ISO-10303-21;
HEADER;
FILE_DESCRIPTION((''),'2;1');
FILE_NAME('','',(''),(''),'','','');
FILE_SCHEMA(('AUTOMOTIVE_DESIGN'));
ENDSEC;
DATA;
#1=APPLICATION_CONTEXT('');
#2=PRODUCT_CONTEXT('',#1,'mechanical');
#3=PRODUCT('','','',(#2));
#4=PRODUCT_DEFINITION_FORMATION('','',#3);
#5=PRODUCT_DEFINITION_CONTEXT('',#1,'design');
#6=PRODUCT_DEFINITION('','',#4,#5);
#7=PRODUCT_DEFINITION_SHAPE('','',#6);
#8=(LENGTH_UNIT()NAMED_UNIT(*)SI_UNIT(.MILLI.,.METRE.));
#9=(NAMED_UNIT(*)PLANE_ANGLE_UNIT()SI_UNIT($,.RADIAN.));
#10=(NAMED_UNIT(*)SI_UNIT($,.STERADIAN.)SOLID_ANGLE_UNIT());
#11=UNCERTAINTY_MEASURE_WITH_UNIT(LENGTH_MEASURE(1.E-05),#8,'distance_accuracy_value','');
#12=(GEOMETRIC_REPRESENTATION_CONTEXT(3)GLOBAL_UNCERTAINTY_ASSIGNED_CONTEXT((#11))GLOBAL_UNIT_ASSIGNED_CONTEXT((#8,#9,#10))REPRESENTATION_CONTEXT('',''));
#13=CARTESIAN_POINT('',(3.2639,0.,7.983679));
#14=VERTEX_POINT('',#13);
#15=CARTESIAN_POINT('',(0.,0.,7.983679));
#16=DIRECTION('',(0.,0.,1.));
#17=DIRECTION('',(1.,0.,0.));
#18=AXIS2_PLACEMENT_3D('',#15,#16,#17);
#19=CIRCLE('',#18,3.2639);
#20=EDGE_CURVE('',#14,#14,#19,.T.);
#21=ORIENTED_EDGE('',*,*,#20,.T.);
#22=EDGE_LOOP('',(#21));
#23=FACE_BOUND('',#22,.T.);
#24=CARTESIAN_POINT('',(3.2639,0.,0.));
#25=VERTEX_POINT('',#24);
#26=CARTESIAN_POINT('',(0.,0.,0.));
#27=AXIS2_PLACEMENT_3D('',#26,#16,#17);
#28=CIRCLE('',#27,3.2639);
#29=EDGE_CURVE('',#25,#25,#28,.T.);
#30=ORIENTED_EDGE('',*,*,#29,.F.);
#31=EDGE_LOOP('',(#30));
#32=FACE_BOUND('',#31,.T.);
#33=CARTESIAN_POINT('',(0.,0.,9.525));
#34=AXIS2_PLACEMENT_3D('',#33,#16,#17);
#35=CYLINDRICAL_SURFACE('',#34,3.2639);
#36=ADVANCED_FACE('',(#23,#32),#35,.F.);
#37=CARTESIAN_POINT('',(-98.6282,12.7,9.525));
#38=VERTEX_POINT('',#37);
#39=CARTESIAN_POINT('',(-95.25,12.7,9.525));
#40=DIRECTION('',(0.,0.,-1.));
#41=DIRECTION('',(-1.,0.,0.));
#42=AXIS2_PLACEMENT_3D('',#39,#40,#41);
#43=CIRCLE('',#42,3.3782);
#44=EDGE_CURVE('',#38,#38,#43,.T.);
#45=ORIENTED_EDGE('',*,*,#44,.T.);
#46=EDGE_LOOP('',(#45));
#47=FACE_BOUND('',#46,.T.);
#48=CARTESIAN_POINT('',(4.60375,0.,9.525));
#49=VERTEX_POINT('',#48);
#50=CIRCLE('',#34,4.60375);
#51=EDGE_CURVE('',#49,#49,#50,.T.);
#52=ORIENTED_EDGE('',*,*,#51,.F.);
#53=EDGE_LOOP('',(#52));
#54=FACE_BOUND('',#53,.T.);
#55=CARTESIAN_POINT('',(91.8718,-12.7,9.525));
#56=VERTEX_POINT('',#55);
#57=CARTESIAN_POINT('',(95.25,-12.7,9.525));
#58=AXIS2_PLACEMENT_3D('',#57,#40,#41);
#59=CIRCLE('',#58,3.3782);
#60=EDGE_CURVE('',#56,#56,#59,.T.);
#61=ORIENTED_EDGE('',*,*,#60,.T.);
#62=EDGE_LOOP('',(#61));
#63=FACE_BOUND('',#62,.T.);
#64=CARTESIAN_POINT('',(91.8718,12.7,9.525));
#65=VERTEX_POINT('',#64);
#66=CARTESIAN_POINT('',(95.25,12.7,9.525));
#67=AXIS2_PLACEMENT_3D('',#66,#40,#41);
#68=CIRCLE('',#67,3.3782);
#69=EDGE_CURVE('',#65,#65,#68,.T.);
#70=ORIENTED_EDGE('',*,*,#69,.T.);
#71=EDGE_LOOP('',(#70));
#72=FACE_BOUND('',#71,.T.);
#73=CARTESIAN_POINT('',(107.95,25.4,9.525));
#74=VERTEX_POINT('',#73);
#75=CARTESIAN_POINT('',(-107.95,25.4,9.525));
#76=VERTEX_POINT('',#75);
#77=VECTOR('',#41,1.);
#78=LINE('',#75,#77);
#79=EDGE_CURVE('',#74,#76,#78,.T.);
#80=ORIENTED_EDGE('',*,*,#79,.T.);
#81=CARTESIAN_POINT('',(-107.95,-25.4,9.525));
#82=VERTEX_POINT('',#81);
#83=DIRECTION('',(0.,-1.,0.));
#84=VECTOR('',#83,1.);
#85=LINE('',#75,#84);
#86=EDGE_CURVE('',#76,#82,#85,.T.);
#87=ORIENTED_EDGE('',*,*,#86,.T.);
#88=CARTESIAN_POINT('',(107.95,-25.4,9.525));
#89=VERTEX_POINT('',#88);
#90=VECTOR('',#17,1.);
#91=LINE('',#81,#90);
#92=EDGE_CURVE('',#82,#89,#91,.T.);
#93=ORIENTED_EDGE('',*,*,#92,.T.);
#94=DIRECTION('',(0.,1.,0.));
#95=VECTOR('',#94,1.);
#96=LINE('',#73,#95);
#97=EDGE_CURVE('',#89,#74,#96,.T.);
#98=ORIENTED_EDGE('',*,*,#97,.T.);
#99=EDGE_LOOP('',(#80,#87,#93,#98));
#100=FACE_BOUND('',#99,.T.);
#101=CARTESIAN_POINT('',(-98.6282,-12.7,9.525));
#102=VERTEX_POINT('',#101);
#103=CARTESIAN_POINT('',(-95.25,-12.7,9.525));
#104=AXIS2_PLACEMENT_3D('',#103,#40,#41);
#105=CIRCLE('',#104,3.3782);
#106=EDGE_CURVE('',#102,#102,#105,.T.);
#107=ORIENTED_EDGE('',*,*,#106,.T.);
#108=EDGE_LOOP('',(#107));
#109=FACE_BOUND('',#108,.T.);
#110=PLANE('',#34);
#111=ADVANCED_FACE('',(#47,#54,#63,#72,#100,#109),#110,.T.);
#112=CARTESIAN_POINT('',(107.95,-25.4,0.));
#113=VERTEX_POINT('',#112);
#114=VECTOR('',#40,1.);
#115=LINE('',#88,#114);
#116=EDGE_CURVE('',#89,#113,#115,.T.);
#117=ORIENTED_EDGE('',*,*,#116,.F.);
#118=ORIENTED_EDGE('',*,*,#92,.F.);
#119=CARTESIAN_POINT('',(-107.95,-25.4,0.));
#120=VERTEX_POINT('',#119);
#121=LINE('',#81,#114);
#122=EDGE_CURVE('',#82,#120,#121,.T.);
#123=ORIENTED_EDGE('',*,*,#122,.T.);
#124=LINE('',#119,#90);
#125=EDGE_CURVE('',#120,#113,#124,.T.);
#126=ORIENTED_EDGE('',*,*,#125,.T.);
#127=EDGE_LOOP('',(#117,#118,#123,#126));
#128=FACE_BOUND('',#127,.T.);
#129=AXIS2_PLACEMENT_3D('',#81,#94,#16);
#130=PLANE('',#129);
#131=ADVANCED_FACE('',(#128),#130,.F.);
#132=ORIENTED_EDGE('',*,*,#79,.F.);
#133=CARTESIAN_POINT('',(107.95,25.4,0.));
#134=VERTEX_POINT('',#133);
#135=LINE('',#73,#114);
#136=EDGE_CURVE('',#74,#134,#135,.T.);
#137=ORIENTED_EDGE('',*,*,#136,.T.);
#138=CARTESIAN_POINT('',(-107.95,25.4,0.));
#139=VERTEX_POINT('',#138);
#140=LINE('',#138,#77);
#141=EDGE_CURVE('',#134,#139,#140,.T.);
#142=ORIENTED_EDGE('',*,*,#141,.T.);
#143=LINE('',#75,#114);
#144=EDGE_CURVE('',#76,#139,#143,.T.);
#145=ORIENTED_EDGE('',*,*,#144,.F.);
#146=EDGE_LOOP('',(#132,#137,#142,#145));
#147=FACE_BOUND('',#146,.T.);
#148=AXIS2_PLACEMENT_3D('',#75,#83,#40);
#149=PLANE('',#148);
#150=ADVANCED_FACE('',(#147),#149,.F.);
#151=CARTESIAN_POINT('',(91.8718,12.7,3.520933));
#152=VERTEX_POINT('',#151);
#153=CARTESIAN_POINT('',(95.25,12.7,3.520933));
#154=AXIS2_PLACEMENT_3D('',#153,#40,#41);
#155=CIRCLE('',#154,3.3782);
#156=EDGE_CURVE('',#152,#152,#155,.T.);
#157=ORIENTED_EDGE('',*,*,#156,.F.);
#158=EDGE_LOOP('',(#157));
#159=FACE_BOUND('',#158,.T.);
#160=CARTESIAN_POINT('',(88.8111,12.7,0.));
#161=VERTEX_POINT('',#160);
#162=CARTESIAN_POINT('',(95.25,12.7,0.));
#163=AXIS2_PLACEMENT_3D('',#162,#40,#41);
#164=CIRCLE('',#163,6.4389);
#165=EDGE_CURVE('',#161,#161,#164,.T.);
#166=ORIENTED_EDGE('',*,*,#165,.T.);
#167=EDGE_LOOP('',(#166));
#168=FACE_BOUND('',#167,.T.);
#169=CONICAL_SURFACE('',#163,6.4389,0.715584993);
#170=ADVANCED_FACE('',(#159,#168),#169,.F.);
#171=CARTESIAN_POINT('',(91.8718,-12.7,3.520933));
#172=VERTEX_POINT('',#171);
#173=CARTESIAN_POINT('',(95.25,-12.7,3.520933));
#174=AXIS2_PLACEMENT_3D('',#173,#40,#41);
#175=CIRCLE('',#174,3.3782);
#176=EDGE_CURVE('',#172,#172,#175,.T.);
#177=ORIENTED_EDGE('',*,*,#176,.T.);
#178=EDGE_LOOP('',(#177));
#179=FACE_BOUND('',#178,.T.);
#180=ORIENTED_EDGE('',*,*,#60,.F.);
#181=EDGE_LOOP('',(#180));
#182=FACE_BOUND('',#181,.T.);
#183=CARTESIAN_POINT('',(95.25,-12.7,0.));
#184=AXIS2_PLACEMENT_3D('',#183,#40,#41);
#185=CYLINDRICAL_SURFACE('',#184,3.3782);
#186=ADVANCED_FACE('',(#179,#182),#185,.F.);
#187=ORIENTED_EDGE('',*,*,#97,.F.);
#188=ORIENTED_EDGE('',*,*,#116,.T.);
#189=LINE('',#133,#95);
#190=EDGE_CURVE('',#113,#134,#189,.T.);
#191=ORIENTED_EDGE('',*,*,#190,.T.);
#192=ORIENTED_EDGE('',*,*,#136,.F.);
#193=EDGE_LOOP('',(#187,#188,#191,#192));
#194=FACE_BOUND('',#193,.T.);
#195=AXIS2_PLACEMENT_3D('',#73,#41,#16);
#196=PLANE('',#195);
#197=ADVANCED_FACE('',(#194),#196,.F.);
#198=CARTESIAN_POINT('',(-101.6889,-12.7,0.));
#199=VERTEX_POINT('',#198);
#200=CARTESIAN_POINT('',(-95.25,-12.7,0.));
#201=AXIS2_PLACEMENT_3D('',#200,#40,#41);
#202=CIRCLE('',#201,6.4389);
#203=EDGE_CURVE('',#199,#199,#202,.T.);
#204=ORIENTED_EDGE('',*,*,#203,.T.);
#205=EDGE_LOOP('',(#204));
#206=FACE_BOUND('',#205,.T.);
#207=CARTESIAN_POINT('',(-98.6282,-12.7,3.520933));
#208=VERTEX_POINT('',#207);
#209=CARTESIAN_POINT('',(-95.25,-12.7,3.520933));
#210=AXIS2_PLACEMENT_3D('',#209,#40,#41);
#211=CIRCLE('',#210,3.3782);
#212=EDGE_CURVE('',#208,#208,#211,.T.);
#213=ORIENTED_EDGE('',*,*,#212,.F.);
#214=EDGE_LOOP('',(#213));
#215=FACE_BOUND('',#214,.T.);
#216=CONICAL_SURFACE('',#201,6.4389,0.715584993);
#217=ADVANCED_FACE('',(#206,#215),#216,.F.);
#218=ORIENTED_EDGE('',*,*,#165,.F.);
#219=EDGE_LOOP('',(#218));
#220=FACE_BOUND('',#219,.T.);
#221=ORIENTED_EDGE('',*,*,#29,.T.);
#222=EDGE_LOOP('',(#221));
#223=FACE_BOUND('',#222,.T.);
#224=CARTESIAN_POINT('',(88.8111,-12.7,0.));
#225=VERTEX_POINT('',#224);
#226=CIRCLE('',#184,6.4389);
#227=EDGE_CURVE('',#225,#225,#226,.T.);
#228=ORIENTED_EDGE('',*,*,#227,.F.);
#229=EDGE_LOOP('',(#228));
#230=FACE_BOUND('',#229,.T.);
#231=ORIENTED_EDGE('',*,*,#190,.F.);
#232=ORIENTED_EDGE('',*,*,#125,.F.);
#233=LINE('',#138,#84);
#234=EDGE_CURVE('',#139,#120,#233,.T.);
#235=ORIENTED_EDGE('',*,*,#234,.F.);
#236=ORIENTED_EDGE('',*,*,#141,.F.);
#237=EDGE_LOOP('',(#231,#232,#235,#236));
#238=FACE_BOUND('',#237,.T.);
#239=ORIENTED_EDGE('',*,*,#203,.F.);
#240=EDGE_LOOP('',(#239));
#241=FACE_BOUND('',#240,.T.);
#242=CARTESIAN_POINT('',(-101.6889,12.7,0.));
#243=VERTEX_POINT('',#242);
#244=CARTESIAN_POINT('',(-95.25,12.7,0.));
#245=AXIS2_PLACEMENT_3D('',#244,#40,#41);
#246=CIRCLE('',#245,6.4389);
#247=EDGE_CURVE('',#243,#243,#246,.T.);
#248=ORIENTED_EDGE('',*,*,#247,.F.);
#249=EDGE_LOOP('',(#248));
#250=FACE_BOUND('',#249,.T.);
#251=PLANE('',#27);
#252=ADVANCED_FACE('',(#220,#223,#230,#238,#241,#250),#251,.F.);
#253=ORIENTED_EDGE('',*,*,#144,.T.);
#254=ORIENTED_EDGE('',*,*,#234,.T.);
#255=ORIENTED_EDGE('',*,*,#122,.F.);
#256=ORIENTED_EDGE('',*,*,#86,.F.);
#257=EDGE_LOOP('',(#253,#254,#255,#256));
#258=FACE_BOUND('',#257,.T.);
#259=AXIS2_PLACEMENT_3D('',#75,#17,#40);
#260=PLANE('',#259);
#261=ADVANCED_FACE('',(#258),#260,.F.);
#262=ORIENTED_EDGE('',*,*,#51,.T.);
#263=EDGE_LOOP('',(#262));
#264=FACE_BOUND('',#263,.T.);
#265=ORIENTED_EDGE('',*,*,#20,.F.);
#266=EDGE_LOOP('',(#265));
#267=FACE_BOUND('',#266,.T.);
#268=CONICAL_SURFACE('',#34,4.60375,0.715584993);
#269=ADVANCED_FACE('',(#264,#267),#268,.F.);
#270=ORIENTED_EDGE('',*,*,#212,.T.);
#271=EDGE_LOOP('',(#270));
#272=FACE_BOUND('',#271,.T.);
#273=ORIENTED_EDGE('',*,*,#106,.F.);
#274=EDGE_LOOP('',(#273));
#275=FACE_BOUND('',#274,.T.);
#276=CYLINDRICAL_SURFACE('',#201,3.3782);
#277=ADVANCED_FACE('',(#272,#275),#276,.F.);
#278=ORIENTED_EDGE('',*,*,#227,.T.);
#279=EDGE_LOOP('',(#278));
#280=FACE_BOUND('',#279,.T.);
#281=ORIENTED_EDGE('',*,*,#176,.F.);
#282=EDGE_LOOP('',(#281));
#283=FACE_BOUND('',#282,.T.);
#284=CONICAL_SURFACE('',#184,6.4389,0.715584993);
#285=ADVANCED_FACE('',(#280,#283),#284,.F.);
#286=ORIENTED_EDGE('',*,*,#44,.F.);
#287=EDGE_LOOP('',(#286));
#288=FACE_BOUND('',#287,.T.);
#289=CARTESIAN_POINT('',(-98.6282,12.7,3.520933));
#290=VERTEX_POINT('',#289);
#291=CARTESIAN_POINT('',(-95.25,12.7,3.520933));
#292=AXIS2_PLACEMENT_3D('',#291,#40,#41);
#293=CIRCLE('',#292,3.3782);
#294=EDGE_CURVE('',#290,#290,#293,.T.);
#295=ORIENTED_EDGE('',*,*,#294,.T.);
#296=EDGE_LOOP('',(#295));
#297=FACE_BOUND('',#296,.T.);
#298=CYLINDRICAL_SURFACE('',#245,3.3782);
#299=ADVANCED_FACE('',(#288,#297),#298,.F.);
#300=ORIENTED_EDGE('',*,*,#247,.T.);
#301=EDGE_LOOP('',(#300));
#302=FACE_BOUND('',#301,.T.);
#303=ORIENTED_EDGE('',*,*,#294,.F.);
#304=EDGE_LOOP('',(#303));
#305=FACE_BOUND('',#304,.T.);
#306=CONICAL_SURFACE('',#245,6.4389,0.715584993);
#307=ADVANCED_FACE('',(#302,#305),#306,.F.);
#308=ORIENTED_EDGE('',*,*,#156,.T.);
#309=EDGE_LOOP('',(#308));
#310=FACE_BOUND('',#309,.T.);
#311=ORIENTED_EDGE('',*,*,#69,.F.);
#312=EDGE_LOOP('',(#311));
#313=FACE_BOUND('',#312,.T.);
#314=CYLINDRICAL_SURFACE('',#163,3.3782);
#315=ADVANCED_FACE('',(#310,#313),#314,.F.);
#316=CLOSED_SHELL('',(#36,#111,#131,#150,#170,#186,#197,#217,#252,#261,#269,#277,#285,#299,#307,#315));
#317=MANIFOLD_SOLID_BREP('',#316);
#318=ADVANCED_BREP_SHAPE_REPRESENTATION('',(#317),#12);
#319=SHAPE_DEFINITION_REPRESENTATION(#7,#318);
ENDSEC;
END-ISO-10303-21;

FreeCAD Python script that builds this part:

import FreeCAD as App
import Part
import Sketcher
from FreeCAD import Vector
Q = App.Units.Quantity


def add_polygon(sketch, points):
    """Adds a closed chain of lines whose ends are joined by coincident constraints."""
    first, n = sketch.GeometryCount, len(points)
    for a, b in zip(points, points[1:] + points[:1]):
        sketch.addGeometry(Part.LineSegment(App.Vector(*a, 0), App.Vector(*b, 0)), False)
    for i in range(n):
        sketch.addConstraint(Sketcher.Constraint("Coincident", first + i, 2, first + (i + 1) % n, 1))

doc = App.newDocument("Part")
params = doc.addObject("Spreadsheet::Sheet", "Params")
for row, (alias, value) in enumerate([
    ("sketch1_height", "2 in"),
    ("sketch1_width", "8.5 in"),
    ("pad1_length", "0.375 in"),
    ("sketch2_diameter", "0.266 in"),
    ("hole_diameter", "0.266 in"),
    ("hole_csink_diameter", "0.507 in"),
    ("sketch3_diameter", "0.257 in"),
    ("hole2_diameter", "0.257 in"),
    ("hole2_csink_diameter", "0.3625 in"),
], start=1):
    params.set(f"A{row}", alias)
    params.set(f"B{row}", "=" + value)
    params.setAlias(f"B{row}", alias)

body = doc.addObject("PartDesign::Body", "Body")

# Sketch on XY plane
sketch1 = doc.addObject("Sketcher::SketchObject", "Sketch")
body.addObject(sketch1)
sketch1.AttachmentSupport = (doc.XY_Plane, [""])
sketch1.MapMode = "FlatFace"
add_polygon(sketch1, [(-108, 25), (-108, -25), (108, -25), (108, 25)])  # lines 0-3
sketch1.addConstraint([
    Sketcher.Constraint("Vertical", 0),
    Sketcher.Constraint("Horizontal", 1),
    Sketcher.Constraint("Vertical", 2),
    Sketcher.Constraint("Horizontal", 3),
    Sketcher.Constraint("Symmetric", 0, 2, 2, 2, -1, 1),
    Sketcher.Constraint("DistanceY", 0, 2, 0, 1, Q("2 in")),
    Sketcher.Constraint("DistanceX", 1, 1, 1, 2, Q("8.5 in")),
])
sketch1.setExpression("Constraints[9]", "Params.sketch1_height")
sketch1.setExpression("Constraints[10]", "Params.sketch1_width")
pad1 = doc.addObject("PartDesign::Pad", "Pad")
body.addObject(pad1)
pad1.Profile = sketch1
pad1.setExpression("Length", "Params.pad1_length")

# Sketch on XY plane
sketch2 = doc.addObject("Sketcher::SketchObject", "Sketch001")
body.addObject(sketch2)
sketch2.AttachmentSupport = (doc.XY_Plane, [""])
sketch2.MapMode = "FlatFace"
sketch2.addGeometry([
    Part.Circle(Vector(95.2, 12.7, 0), Vector(0, 0, 1), 3.4),
    Part.Circle(Vector(95.2, -12.7, 0), Vector(0, 0, 1), 3.4),
    Part.Circle(Vector(-95.2, 12.7, 0), Vector(0, 0, 1), 3.4),
    Part.Circle(Vector(-95.2, -12.7, 0), Vector(0, 0, 1), 3.4),
], False)
sketch2.addConstraint([
    Sketcher.Constraint("Equal", 0, 1),
    Sketcher.Constraint("Equal", 1, 2),
    Sketcher.Constraint("Equal", 2, 3),
    Sketcher.Constraint("Symmetric", 1, 3, 2, 3, -1, 1),
    Sketcher.Constraint("Symmetric", 0, 3, 3, 3, -1, 1),
    Sketcher.Constraint("Symmetric", 0, 3, 2, 3, -2),
    Sketcher.Constraint("Diameter", 0, Q("0.266 in")),
    Sketcher.Constraint("DistanceY", 1, 3, 0, 3, Q("1 in")),
    Sketcher.Constraint("DistanceX", 2, 3, 0, 3, Q("7.5 in")),
])
sketch2.setExpression("Constraints[6]", "Params.sketch2_diameter")
doc.recompute()
hole = doc.addObject("PartDesign::Hole", "Hole")
body.addObject(hole)
hole.Profile = sketch2
hole.ThreadType = "None"
hole.setExpression("Diameter", "Params.hole_diameter")
hole.DepthType = "ThroughAll"
hole.HoleCutType = "Countersink"
hole.setExpression("HoleCutDiameter", "Params.hole_csink_diameter")
hole.HoleCutCountersinkAngle = 82
hole.Reversed = True

# Sketch on XY plane
sketch3 = doc.addObject("Sketcher::SketchObject", "Sketch002")
body.addObject(sketch3)
sketch3.AttachmentSupport = (doc.XY_Plane, [""])
sketch3.MapMode = "FlatFace"
sketch3.AttachmentOffset = App.Placement(Vector(0, 0, 0.375 * 25.4), App.Rotation())
sketch3.addGeometry(Part.Circle(Vector(0, 0, 0), Vector(0, 0, 1), 3.3), False)
sketch3.addConstraint([
    Sketcher.Constraint("Coincident", 0, 3, -1, 1),
    Sketcher.Constraint("Diameter", 0, Q("0.257 in")),
])
sketch3.setExpression("Constraints[1]", "Params.sketch3_diameter")
doc.recompute()
hole2 = doc.addObject("PartDesign::Hole", "Hole001")
body.addObject(hole2)
hole2.Profile = sketch3
hole2.ThreadType = "None"
hole2.setExpression("Diameter", "Params.hole2_diameter")
hole2.DepthType = "ThroughAll"
hole2.HoleCutType = "Countersink"
hole2.setExpression("HoleCutDiameter", "Params.hole2_csink_diameter")
hole2.HoleCutCountersinkAngle = 82

doc.recompute()
